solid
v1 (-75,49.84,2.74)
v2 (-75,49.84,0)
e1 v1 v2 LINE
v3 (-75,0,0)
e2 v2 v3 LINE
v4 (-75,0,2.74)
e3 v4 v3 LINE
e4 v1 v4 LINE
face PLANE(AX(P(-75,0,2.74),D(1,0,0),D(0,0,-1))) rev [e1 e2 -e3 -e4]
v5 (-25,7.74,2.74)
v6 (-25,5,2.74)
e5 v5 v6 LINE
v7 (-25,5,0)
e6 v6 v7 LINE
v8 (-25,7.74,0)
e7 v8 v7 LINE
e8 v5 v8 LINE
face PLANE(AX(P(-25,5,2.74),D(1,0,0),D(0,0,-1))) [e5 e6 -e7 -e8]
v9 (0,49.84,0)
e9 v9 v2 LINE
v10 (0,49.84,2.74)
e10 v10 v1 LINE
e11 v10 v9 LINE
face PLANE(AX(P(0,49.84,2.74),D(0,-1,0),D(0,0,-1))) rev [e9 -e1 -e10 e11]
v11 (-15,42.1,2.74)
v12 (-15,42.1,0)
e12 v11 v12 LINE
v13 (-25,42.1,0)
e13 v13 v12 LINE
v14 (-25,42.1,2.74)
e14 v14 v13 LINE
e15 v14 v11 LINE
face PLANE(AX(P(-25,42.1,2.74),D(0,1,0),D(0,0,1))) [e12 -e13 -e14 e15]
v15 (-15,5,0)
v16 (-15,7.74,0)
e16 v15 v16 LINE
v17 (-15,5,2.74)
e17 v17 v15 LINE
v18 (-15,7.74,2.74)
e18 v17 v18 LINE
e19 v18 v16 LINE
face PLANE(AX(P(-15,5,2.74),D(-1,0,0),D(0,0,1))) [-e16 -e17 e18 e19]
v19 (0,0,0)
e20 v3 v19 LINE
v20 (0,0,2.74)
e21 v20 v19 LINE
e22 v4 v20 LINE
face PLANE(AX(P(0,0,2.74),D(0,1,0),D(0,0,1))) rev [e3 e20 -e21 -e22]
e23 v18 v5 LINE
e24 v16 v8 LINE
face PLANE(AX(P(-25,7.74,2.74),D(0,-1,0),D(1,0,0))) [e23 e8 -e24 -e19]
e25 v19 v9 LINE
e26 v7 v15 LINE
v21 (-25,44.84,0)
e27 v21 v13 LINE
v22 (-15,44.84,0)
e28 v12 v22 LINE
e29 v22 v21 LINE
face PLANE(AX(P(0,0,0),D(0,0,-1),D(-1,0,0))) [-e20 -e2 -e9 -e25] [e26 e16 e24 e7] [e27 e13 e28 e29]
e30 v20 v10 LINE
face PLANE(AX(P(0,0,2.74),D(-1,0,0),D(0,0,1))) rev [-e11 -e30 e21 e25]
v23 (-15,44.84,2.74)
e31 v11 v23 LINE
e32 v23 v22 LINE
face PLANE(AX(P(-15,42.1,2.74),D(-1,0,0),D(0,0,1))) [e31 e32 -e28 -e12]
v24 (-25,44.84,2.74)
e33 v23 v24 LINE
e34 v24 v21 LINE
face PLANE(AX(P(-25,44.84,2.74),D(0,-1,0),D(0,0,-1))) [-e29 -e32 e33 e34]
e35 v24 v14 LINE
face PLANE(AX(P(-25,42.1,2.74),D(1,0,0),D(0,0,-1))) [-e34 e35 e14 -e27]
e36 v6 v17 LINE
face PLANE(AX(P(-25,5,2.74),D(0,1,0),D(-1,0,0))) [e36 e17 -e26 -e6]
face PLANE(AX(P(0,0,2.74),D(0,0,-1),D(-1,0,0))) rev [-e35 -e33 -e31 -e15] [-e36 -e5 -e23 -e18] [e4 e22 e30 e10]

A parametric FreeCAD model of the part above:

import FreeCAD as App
import Part
import Sketcher
Q = App.Units.Quantity

doc = App.newDocument("Part")
body = doc.addObject("PartDesign::Body", "Body")

# Sketch on XY plane
sketch1 = body.newObject("Sketcher::SketchObject", "Sketch")
sketch1.AttachmentSupport = (doc.getObject("XY_Plane"), [""])
sketch1.MapMode = "FlatFace"
sketch1.addGeometry([
    Part.LineSegment(App.Vector(-75, 0, 0), App.Vector(0, 0, 0)),  # 0
    Part.LineSegment(App.Vector(0, 0, 0), App.Vector(0, 49.8, 0)),  # 1
    Part.LineSegment(App.Vector(0, 49.8, 0), App.Vector(-75, 49.8, 0)),  # 2
    Part.LineSegment(App.Vector(-75, 49.8, 0), App.Vector(-75, 0, 0)),  # 3
    Part.LineSegment(App.Vector(-15, 7.7, 0), App.Vector(-15, 5, 0)),  # 4
    Part.LineSegment(App.Vector(-15, 5, 0), App.Vector(-25, 5, 0)),  # 5
    Part.LineSegment(App.Vector(-25, 5, 0), App.Vector(-25, 7.7, 0)),  # 6
    Part.LineSegment(App.Vector(-25, 7.7, 0), App.Vector(-15, 7.7, 0)),  # 7
    Part.LineSegment(App.Vector(-15, 44.8, 0), App.Vector(-15, 42.1, 0)),  # 8
    Part.LineSegment(App.Vector(-15, 42.1, 0), App.Vector(-25, 42.1, 0)),  # 9
    Part.LineSegment(App.Vector(-25, 42.1, 0), App.Vector(-25, 44.8, 0)),  # 10
    Part.LineSegment(App.Vector(-25, 44.8, 0), App.Vector(-15, 44.8, 0)),  # 11
], False)
sketch1.addConstraint([
    Sketcher.Constraint("Coincident", 0, 2, 1, 1),
    Sketcher.Constraint("Coincident", 1, 2, 2, 1),
    Sketcher.Constraint("Coincident", 2, 2, 3, 1),
    Sketcher.Constraint("Coincident", 3, 2, 0, 1),
    Sketcher.Constraint("Coincident", 4, 2, 5, 1),
    Sketcher.Constraint("Coincident", 5, 2, 6, 1),
    Sketcher.Constraint("Coincident", 6, 2, 7, 1),
    Sketcher.Constraint("Coincident", 7, 2, 4, 1),
    Sketcher.Constraint("Coincident", 8, 2, 9, 1),
    Sketcher.Constraint("Coincident", 9, 2, 10, 1),
    Sketcher.Constraint("Coincident", 10, 2, 11, 1),
    Sketcher.Constraint("Coincident", 11, 2, 8, 1),
    Sketcher.Constraint("Horizontal", 0),
    Sketcher.Constraint("Vertical", 1),
    Sketcher.Constraint("Horizontal", 2),
    Sketcher.Constraint("Vertical", 3),
    Sketcher.Constraint("Vertical", 4),
    Sketcher.Constraint("Horizontal", 5),
    Sketcher.Constraint("Vertical", 6),
    Sketcher.Constraint("Horizontal", 7),
    Sketcher.Constraint("Vertical", 8),
    Sketcher.Constraint("Horizontal", 9),
    Sketcher.Constraint("Vertical", 10),
    Sketcher.Constraint("Horizontal", 11),
    Sketcher.Constraint("Coincident", 0, 2, -1, 1),
    Sketcher.Constraint("Vertical", 7, 2, 8, 2),
    Sketcher.Constraint("Vertical", 6, 2, 9, 2),
    Sketcher.Constraint("Equal", 6, 8),
    Sketcher.Constraint("DistanceX", 0, 1, 0, 2, Q("75 mm")),
    Sketcher.Constraint("DistanceX", 5, 2, 5, 1, Q("10 mm")),
    Sketcher.Constraint("DistanceX", 4, 2, -1, 1, Q("15 mm")),
    Sketcher.Constraint("DistanceY", -1, 1, 4, 2, Q("5 mm")),
    Sketcher.Constraint("DistanceY", 10, 2, 1, 2, Q("5 mm")),
    Sketcher.Constraint("DistanceY", 1, 1, 1, 2, Q("49.84 mm")),
    Sketcher.Constraint("DistanceY", 4, 2, 4, 1, Q("2.74 mm")),
])
pad1 = body.newObject("PartDesign::Pad", "Pad")
pad1.Profile = sketch1
pad1.Length = 2.74

doc.recompute()
